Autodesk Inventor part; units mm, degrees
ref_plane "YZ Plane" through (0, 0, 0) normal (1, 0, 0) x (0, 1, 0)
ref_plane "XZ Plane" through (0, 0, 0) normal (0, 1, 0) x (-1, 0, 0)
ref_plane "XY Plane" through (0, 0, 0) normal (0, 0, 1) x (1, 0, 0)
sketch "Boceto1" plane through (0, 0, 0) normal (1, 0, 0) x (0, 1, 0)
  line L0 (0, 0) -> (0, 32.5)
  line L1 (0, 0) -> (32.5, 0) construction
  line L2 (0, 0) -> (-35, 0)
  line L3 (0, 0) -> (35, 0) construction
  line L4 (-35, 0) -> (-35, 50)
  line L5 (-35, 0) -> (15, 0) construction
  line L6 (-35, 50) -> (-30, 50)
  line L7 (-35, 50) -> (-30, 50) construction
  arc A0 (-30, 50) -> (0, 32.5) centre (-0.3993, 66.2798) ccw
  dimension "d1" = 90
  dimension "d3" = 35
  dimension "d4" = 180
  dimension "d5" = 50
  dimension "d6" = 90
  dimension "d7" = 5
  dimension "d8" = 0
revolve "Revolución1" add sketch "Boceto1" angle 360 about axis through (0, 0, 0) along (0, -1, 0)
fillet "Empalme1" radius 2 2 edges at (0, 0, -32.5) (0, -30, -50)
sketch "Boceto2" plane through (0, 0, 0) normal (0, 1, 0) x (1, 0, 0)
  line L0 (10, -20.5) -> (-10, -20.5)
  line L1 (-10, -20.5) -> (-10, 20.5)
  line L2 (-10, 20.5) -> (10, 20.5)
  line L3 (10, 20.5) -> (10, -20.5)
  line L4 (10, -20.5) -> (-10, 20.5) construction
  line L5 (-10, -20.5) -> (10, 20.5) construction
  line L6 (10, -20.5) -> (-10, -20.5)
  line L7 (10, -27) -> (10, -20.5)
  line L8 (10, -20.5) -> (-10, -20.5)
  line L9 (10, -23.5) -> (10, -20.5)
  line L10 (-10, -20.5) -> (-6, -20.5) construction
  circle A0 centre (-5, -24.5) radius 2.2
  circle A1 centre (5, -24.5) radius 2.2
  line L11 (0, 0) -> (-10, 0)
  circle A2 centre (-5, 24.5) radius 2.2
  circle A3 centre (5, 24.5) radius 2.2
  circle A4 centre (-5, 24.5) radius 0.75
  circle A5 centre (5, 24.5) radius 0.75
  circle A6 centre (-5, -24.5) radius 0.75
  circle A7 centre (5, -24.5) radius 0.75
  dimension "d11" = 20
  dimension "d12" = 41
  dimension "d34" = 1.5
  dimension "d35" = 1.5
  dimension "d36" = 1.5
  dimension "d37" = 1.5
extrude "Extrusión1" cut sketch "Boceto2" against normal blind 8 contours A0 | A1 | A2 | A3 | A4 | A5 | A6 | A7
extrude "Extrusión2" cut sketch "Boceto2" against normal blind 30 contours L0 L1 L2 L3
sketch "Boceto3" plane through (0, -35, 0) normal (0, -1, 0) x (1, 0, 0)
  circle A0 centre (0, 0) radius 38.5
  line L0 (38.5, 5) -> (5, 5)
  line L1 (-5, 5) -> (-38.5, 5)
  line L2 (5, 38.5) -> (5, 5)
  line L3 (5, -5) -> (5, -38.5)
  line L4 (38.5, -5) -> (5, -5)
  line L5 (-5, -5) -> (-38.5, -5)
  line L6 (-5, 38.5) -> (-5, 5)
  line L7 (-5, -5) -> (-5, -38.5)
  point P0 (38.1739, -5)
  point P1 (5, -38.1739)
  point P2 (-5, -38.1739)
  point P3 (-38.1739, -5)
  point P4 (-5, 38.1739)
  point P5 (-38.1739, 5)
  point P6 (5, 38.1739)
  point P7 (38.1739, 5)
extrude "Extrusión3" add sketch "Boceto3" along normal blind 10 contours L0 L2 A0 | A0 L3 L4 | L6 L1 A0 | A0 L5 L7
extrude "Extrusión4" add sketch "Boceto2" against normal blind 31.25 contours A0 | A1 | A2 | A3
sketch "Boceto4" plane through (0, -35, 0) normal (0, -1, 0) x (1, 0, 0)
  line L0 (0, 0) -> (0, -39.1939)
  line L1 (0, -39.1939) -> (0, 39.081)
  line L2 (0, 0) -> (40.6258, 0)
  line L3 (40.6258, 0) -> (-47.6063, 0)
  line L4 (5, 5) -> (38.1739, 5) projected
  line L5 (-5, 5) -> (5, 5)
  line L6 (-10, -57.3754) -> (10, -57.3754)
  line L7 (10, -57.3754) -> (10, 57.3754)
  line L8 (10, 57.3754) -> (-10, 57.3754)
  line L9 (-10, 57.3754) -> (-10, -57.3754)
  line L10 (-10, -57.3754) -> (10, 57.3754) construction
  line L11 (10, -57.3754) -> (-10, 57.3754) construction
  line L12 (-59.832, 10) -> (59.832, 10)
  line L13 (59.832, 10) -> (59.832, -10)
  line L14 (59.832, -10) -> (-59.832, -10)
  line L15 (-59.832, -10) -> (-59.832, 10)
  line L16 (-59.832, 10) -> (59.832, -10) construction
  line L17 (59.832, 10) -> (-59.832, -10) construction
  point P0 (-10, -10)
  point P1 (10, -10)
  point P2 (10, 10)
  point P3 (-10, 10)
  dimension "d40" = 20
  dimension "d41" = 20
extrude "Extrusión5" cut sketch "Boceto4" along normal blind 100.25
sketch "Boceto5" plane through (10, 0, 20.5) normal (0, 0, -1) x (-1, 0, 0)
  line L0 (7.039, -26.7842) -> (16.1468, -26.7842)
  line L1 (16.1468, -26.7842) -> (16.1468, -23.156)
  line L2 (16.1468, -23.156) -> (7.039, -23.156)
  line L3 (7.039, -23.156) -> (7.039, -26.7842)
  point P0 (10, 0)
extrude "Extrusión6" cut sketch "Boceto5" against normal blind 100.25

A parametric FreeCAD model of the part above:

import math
import FreeCAD as App
import Part
import Sketcher


def edges_at(feature, points):
    """Names of the edges that pass closest to the given points."""
    edges = feature.Shape.Edges
    near = lambda p: min(range(len(edges)), key=lambda i: edges[i].distToShape(Part.Vertex(*p))[0])
    return sorted({f"Edge{near(p) + 1}" for p in points})

doc = App.newDocument("Part")
params = doc.addObject("Spreadsheet::Sheet", "Params")
for row, (alias, value) in enumerate([
    ("sketch1_width", "35 mm"),
    ("sketch1_width2", "5 mm"),
    ("sketch1_height", "50 mm"),
    ("sketch1_height2", "32.5 mm"),
    ("revolution_angle", "360 deg"),
    ("fillet_radius", "2 mm"),
    ("sketch2_diameter", "4.4 mm"),
    ("pocket1_length", "8 mm"),
    ("sketch3_width", "20 mm"),
    ("sketch3_height", "41 mm"),
    ("pocket2_length", "30 mm"),
    ("sketch4_radius", "38.5 mm"),
    ("pad1_length", "10 mm"),
    ("sketch5_diameter", "1.5 mm"),
    ("sketch5_diameter2", "4.4 mm"),
    ("pad2_length", "31.25 mm"),
    ("sketch6_width", "20 mm"),
    ("pocket3_length", "100.25 mm"),
    ("pocket4_length", "100.25 mm"),
], start=1):
    params.set(f"A{row}", alias)
    params.set(f"B{row}", "=" + value)
    params.setAlias(f"B{row}", alias)

body = doc.addObject("PartDesign::Body", "Body")

# Sketch on YZ plane
sketch1 = doc.addObject("Sketcher::SketchObject", "Sketch")
body.addObject(sketch1)
sketch1.AttachmentSupport = (doc.YZ_Plane, [""])
sketch1.MapMode = "FlatFace"
sketch1.addGeometry([
    Part.LineSegment(App.Vector(-35, 0, 0), App.Vector(0, 0, 0)),  # 0
    Part.LineSegment(App.Vector(0, 0, 0), App.Vector(0, 32, 0)),  # 1
    Part.ArcOfCircle(Part.Circle(App.Vector(0, 66, 0), App.Vector(0, 0, 1), 34), math.radians(-151), math.radians(-89)),  # 2
    Part.LineSegment(App.Vector(-30, 50, 0), App.Vector(-35, 50, 0)),  # 3
    Part.LineSegment(App.Vector(-35, 50, 0), App.Vector(-35, 0, 0)),  # 4
], False)
sketch1.addConstraint([
    Sketcher.Constraint("Coincident", 0, 2, 1, 1),
    Sketcher.Constraint("Coincident", 1, 2, 2, 2),
    Sketcher.Constraint("Coincident", 2, 1, 3, 1),
    Sketcher.Constraint("Coincident", 3, 2, 4, 1),
    Sketcher.Constraint("Coincident", 4, 2, 0, 1),
    Sketcher.Constraint("Horizontal", 0),
    Sketcher.Constraint("Vertical", 1),
    Sketcher.Constraint("Horizontal", 3),
    Sketcher.Constraint("Vertical", 4),
    Sketcher.Constraint("Coincident", 0, 2, -1, 1),
    Sketcher.Constraint("DistanceX", 0, 1, 0, 2, 35.0),
    Sketcher.Constraint("DistanceX", 3, 2, 3, 1, 5.0),
    Sketcher.Constraint("DistanceY", 4, 2, 4, 1, 50.0),
    Sketcher.Constraint("DistanceY", 1, 1, 1, 2, 32.5),
    Sketcher.Constraint("Radius", 2, 33.7821),
])
sketch1.setExpression("Constraints[10]", "Params.sketch1_width")
sketch1.setExpression("Constraints[11]", "Params.sketch1_width2")
sketch1.setExpression("Constraints[12]", "Params.sketch1_height")
sketch1.setExpression("Constraints[13]", "Params.sketch1_height2")
revolution = doc.addObject("PartDesign::Revolution", "Revolution")
body.addObject(revolution)
revolution.Profile = sketch1
revolution.ReferenceAxis = (sketch1, ["H_Axis"])
revolution.setExpression("Angle", "Params.revolution_angle")
doc.recompute()

fillet = doc.addObject("PartDesign::Fillet", "Fillet")
body.addObject(fillet)
fillet.Base = (revolution, edges_at(revolution, [(0, 0, -32.5), (0, -30, -50)]))
fillet.setExpression("Radius", "Params.fillet_radius")

# Sketch on XZ plane
sketch2 = doc.addObject("Sketcher::SketchObject", "Sketch001")
body.addObject(sketch2)
sketch2.AttachmentSupport = (doc.XZ_Plane, [""])
sketch2.MapMode = "FlatFace"
sketch2.addGeometry([
    Part.Circle(App.Vector(-5, 24.5, 0), App.Vector(0, 0, 1), 2.2),
    Part.Circle(App.Vector(5, 24.5, 0), App.Vector(0, 0, 1), 2.2),
    Part.Circle(App.Vector(-5, -24.5, 0), App.Vector(0, 0, 1), 2.2),
    Part.Circle(App.Vector(5, -24.5, 0), App.Vector(0, 0, 1), 2.2),
], False)
sketch2.addConstraint([
    Sketcher.Constraint("Equal", 0, 1),
    Sketcher.Constraint("Equal", 1, 2),
    Sketcher.Constraint("Equal", 2, 3),
    Sketcher.Constraint("Symmetric", 1, 3, 2, 3, -1, 1),
    Sketcher.Constraint("Symmetric", 0, 3, 3, 3, -1, 1),
    Sketcher.Constraint("Symmetric", 0, 3, 1, 3, -2),
    Sketcher.Constraint("Diameter", 0, 4.4),
    Sketcher.Constraint("DistanceX", 0, 3, -1, 1, 5.0),
    Sketcher.Constraint("DistanceY", 2, 3, 0, 3, 49.0),
])
sketch2.setExpression("Constraints[6]", "Params.sketch2_diameter")
pocket1 = doc.addObject("PartDesign::Pocket", "Pocket")
body.addObject(pocket1)
pocket1.Profile = sketch2
pocket1.setExpression("Length", "Params.pocket1_length")
pocket1.Reversed = True

# Sketch on XZ plane
sketch3 = doc.addObject("Sketcher::SketchObject", "Sketch002")
body.addObject(sketch3)
sketch3.AttachmentSupport = (doc.XZ_Plane, [""])
sketch3.MapMode = "FlatFace"
sketch3.addGeometry([
    Part.LineSegment(App.Vector(-10, 20, 0), App.Vector(10, 20, 0)),
    Part.LineSegment(App.Vector(10, 20, 0), App.Vector(10, -20, 0)),
    Part.LineSegment(App.Vector(10, -20, 0), App.Vector(-10, -20, 0)),
    Part.LineSegment(App.Vector(-10, -20, 0), App.Vector(-10, 20, 0)),
], False)
sketch3.addConstraint([
    Sketcher.Constraint("Coincident", 0, 2, 1, 1),
    Sketcher.Constraint("Coincident", 1, 2, 2, 1),
    Sketcher.Constraint("Coincident", 2, 2, 3, 1),
    Sketcher.Constraint("Coincident", 3, 2, 0, 1),
    Sketcher.Constraint("Horizontal", 0),
    Sketcher.Constraint("Vertical", 1),
    Sketcher.Constraint("Horizontal", 2),
    Sketcher.Constraint("Vertical", 3),
    Sketcher.Constraint("Symmetric", 0, 2, 2, 2, -1, 1),
    Sketcher.Constraint("DistanceX", 0, 1, 0, 2, 20.0),
    Sketcher.Constraint("DistanceY", 1, 2, 1, 1, 41.0),
])
sketch3.setExpression("Constraints[9]", "Params.sketch3_width")
sketch3.setExpression("Constraints[10]", "Params.sketch3_height")
pocket2 = doc.addObject("PartDesign::Pocket", "Pocket001")
body.addObject(pocket2)
pocket2.Profile = sketch3
pocket2.setExpression("Length", "Params.pocket2_length")
pocket2.Reversed = True

# Sketch on XZ plane
sketch4 = doc.addObject("Sketcher::SketchObject", "Sketch003")
body.addObject(sketch4)
sketch4.AttachmentSupport = (doc.XZ_Plane, [""])
sketch4.MapMode = "FlatFace"
sketch4.AttachmentOffset = App.Placement(App.Vector(0, 0, 35), App.Rotation())
sketch4.addGeometry([
    Part.LineSegment(App.Vector(5, 5, 0), App.Vector(38, 5, 0)),  # 0
    Part.ArcOfCircle(Part.Circle(App.Vector(0, 0, 0), App.Vector(0, 0, 1), 38), math.radians(7), math.radians(83)),  # 1
    Part.LineSegment(App.Vector(5, 38, 0), App.Vector(5, 5, 0)),  # 2
    Part.ArcOfCircle(Part.Circle(App.Vector(0, 0, 0), App.Vector(0, 0, 1), 38), math.radians(-83), math.radians(-7)),  # 3
    Part.LineSegment(App.Vector(38, -5, 0), App.Vector(5, -5, 0)),  # 4
    Part.LineSegment(App.Vector(5, -5, 0), App.Vector(5, -38, 0)),  # 5
    Part.LineSegment(App.Vector(-5, 5, 0), App.Vector(-5, 38, 0)),  # 6
    Part.ArcOfCircle(Part.Circle(App.Vector(0, 0, 0), App.Vector(0, 0, 1), 38), math.radians(97), math.radians(173)),  # 7
    Part.LineSegment(App.Vector(-38, 5, 0), App.Vector(-5, 5, 0)),  # 8
    Part.ArcOfCircle(Part.Circle(App.Vector(0, 0, 0), App.Vector(0, 0, 1), 38), math.radians(-173), math.radians(-97)),  # 9
    Part.LineSegment(App.Vector(-5, -38, 0), App.Vector(-5, -5, 0)),  # 10
    Part.LineSegment(App.Vector(-5, -5, 0), App.Vector(-38, -5, 0)),  # 11
], False)
sketch4.addConstraint([
    Sketcher.Constraint("Coincident", 0, 2, 1, 1),
    Sketcher.Constraint("Coincident", 1, 2, 2, 1),
    Sketcher.Constraint("Coincident", 2, 2, 0, 1),
    Sketcher.Constraint("Coincident", 3, 2, 4, 1),
    Sketcher.Constraint("Coincident", 4, 2, 5, 1),
    Sketcher.Constraint("Coincident", 5, 2, 3, 1),
    Sketcher.Constraint("Coincident", 6, 2, 7, 1),
    Sketcher.Constraint("Coincident", 7, 2, 8, 1),
    Sketcher.Constraint("Coincident", 8, 2, 6, 1),
    Sketcher.Constraint("Coincident", 9, 2, 10, 1),
    Sketcher.Constraint("Coincident", 10, 2, 11, 1),
    Sketcher.Constraint("Coincident", 11, 2, 9, 1),
    Sketcher.Constraint("Horizontal", 0),
    Sketcher.Constraint("Vertical", 2),
    Sketcher.Constraint("Horizontal", 4),
    Sketcher.Constraint("Vertical", 5),
    Sketcher.Constraint("Vertical", 6),
    Sketcher.Constraint("Horizontal", 8),
    Sketcher.Constraint("Vertical", 10),
    Sketcher.Constraint("Horizontal", 11),
    Sketcher.Constraint("Coincident", 1, 3, -1, 1),
    Sketcher.Constraint("Coincident", 3, 3, -1, 1),
    Sketcher.Constraint("Coincident", 7, 3, -1, 1),
    Sketcher.Constraint("Coincident", 9, 3, -1, 1),
    Sketcher.Constraint("Equal", 1, 3),
    Sketcher.Constraint("Equal", 3, 7),
    Sketcher.Constraint("Equal", 7, 9),
    Sketcher.Constraint("Symmetric", 4, 2, 8, 2, -1, 1),
    Sketcher.Constraint("Symmetric", 2, 2, 10, 2, -1, 1),
    Sketcher.Constraint("Symmetric", 2, 2, 8, 2, -2),
    Sketcher.Constraint("Equal", 11, 2),
    Sketcher.Constraint("Radius", 1, 38.5),
    Sketcher.Constraint("DistanceY", -1, 1, 0, 2, 5.0),
])
sketch4.setExpression("Constraints[31]", "Params.sketch4_radius")
pad1 = doc.addObject("PartDesign::Pad", "Pad")
body.addObject(pad1)
pad1.Profile = sketch4
pad1.setExpression("Length", "Params.pad1_length")

# Sketch on XZ plane
sketch5 = doc.addObject("Sketcher::SketchObject", "Sketch004")
body.addObject(sketch5)
sketch5.AttachmentSupport = (doc.XZ_Plane, [""])
sketch5.MapMode = "FlatFace"
sketch5.addGeometry([
    Part.Circle(App.Vector(-5, 24.5, 0), App.Vector(0, 0, 1), 2.2),  # 0
    Part.Circle(App.Vector(-5, 24.5, 0), App.Vector(0, 0, 1), 0.8),  # 1
    Part.Circle(App.Vector(5, 24.5, 0), App.Vector(0, 0, 1), 2.2),  # 2
    Part.Circle(App.Vector(5, 24.5, 0), App.Vector(0, 0, 1), 0.8),  # 3
    Part.Circle(App.Vector(-5, -24.5, 0), App.Vector(0, 0, 1), 2.2),  # 4
    Part.Circle(App.Vector(-5, -24.5, 0), App.Vector(0, 0, 1), 0.8),  # 5
    Part.Circle(App.Vector(5, -24.5, 0), App.Vector(0, 0, 1), 2.2),  # 6
    Part.Circle(App.Vector(5, -24.5, 0), App.Vector(0, 0, 1), 0.8),  # 7
], False)
sketch5.addConstraint([
    Sketcher.Constraint("Coincident", 1, 3, 0, 3),
    Sketcher.Constraint("Coincident", 3, 3, 2, 3),
    Sketcher.Constraint("Coincident", 5, 3, 4, 3),
    Sketcher.Constraint("Coincident", 7, 3, 6, 3),
    Sketcher.Constraint("Equal", 0, 2),
    Sketcher.Constraint("Equal", 1, 3),
    Sketcher.Constraint("Equal", 2, 4),
    Sketcher.Constraint("Equal", 3, 5),
    Sketcher.Constraint("Equal", 4, 6),
    Sketcher.Constraint("Equal", 5, 7),
    Sketcher.Constraint("Symmetric", 2, 3, 4, 3, -1, 1),
    Sketcher.Constraint("Symmetric", 0, 3, 6, 3, -1, 1),
    Sketcher.Constraint("Symmetric", 0, 3, 2, 3, -2),
    Sketcher.Constraint("Diameter", 1, 1.5),
    Sketcher.Constraint("Diameter", 0, 4.4),
    Sketcher.Constraint("DistanceX", 0, 3, -1, 1, 5.0),
    Sketcher.Constraint("DistanceY", 4, 3, 0, 3, 49.0),
])
sketch5.setExpression("Constraints[13]", "Params.sketch5_diameter")
sketch5.setExpression("Constraints[14]", "Params.sketch5_diameter2")
pad2 = doc.addObject("PartDesign::Pad", "Pad001")
body.addObject(pad2)
pad2.Profile = sketch5
pad2.setExpression("Length", "Params.pad2_length")

# Sketch on XZ plane
sketch6 = doc.addObject("Sketcher::SketchObject", "Sketch005")
body.addObject(sketch6)
sketch6.AttachmentSupport = (doc.XZ_Plane, [""])
sketch6.MapMode = "FlatFace"
sketch6.AttachmentOffset = App.Placement(App.Vector(0, 0, 35), App.Rotation())
sketch6.addGeometry([
    Part.LineSegment(App.Vector(10, -10, 0), App.Vector(60, -10, 0)),  # 0
    Part.LineSegment(App.Vector(60, -10, 0), App.Vector(60, 10, 0)),  # 1
    Part.LineSegment(App.Vector(60, 10, 0), App.Vector(10, 10, 0)),  # 2
    Part.LineSegment(App.Vector(10, 10, 0), App.Vector(10, 57, 0)),  # 3
    Part.LineSegment(App.Vector(10, 57, 0), App.Vector(-10, 57, 0)),  # 4
    Part.LineSegment(App.Vector(-10, 57, 0), App.Vector(-10, 10, 0)),  # 5
    Part.LineSegment(App.Vector(-10, 10, 0), App.Vector(-60, 10, 0)),  # 6
    Part.LineSegment(App.Vector(-60, 10, 0), App.Vector(-60, -10, 0)),  # 7
    Part.LineSegment(App.Vector(-60, -10, 0), App.Vector(-10, -10, 0)),  # 8
    Part.LineSegment(App.Vector(-10, -10, 0), App.Vector(-10, -57, 0)),  # 9
    Part.LineSegment(App.Vector(-10, -57, 0), App.Vector(10, -57, 0)),  # 10
    Part.LineSegment(App.Vector(10, -57, 0), App.Vector(10, -10, 0)),  # 11
], False)
sketch6.addConstraint([
    Sketcher.Constraint("Coincident", 0, 2, 1, 1),
    Sketcher.Constraint("Coincident", 1, 2, 2, 1),
    Sketcher.Constraint("Coincident", 2, 2, 3, 1),
    Sketcher.Constraint("Coincident", 3, 2, 4, 1),
    Sketcher.Constraint("Coincident", 4, 2, 5, 1),
    Sketcher.Constraint("Coincident", 5, 2, 6, 1),
    Sketcher.Constraint("Coincident", 6, 2, 7, 1),
    Sketcher.Constraint("Coincident", 7, 2, 8, 1),
    Sketcher.Constraint("Coincident", 8, 2, 9, 1),
    Sketcher.Constraint("Coincident", 9, 2, 10, 1),
    Sketcher.Constraint("Coincident", 10, 2, 11, 1),
    Sketcher.Constraint("Coincident", 11, 2, 0, 1),
    Sketcher.Constraint("Horizontal", 0),
    Sketcher.Constraint("Vertical", 1),
    Sketcher.Constraint("Horizontal", 2),
    Sketcher.Constraint("Vertical", 3),
    Sketcher.Constraint("Horizontal", 4),
    Sketcher.Constraint("Vertical", 5),
    Sketcher.Constraint("Horizontal", 6),
    Sketcher.Constraint("Vertical", 7),
    Sketcher.Constraint("Horizontal", 8),
    Sketcher.Constraint("Vertical", 9),
    Sketcher.Constraint("Horizontal", 10),
    Sketcher.Constraint("Vertical", 11),
    Sketcher.Constraint("Symmetric", 0, 2, 6, 2, -1, 1),
    Sketcher.Constraint("Symmetric", 2, 2, 8, 2, -1, 1),
    Sketcher.Constraint("Symmetric", 4, 2, 10, 2, -1, 1),
    Sketcher.Constraint("Symmetric", 2, 2, 5, 2, -2),
    Sketcher.Constraint("Equal", 10, 1),
    Sketcher.Constraint("DistanceX", 4, 2, 4, 1, 20.0),
    Sketcher.Constraint("DistanceX", 0, 1, 0, 2, 49.832),
    Sketcher.Constraint("DistanceY", 3, 1, 3, 2, 47.3754),
])
sketch6.setExpression("Constraints[29]", "Params.sketch6_width")
pocket3 = doc.addObject("PartDesign::Pocket", "Pocket002")
body.addObject(pocket3)
pocket3.Profile = sketch6
pocket3.setExpression("Length", "Params.pocket3_length")
pocket3.Reversed = True

# Sketch on XY plane
sketch7 = doc.addObject("Sketcher::SketchObject", "Sketch006")
body.addObject(sketch7)
sketch7.AttachmentSupport = (doc.XY_Plane, [""])
sketch7.MapMode = "FlatFace"
sketch7.AttachmentOffset = App.Placement(App.Vector(0, 0, 20.5), App.Rotation())
sketch7.addGeometry([
    Part.LineSegment(App.Vector(3, -23.2, 0), App.Vector(3, -26.8, 0)),
    Part.LineSegment(App.Vector(3, -26.8, 0), App.Vector(-6.1, -26.8, 0)),
    Part.LineSegment(App.Vector(-6.1, -26.8, 0), App.Vector(-6.1, -23.2, 0)),
    Part.LineSegment(App.Vector(-6.1, -23.2, 0), App.Vector(3, -23.2, 0)),
], False)
sketch7.addConstraint([
    Sketcher.Constraint("Coincident", 0, 2, 1, 1),
    Sketcher.Constraint("Coincident", 1, 2, 2, 1),
    Sketcher.Constraint("Coincident", 2, 2, 3, 1),
    Sketcher.Constraint("Coincident", 3, 2, 0, 1),
    Sketcher.Constraint("Vertical", 0),
    Sketcher.Constraint("Horizontal", 1),
    Sketcher.Constraint("Vertical", 2),
    Sketcher.Constraint("Horizontal", 3),
    Sketcher.Constraint("DistanceX", 1, 2, 1, 1, 9.1078),
    Sketcher.Constraint("DistanceY", 0, 2, 0, 1, 3.6282),
    Sketcher.Constraint("DistanceX", -1, 1, 0, 2, 2.961),
    Sketcher.Constraint("DistanceY", 2, 2, -1, 1, 23.156),
])
pocket4 = doc.addObject("PartDesign::Pocket", "Pocket003")
body.addObject(pocket4)
pocket4.Profile = sketch7
pocket4.setExpression("Length", "Params.pocket4_length")
pocket4.Reversed = True

doc.recompute()
